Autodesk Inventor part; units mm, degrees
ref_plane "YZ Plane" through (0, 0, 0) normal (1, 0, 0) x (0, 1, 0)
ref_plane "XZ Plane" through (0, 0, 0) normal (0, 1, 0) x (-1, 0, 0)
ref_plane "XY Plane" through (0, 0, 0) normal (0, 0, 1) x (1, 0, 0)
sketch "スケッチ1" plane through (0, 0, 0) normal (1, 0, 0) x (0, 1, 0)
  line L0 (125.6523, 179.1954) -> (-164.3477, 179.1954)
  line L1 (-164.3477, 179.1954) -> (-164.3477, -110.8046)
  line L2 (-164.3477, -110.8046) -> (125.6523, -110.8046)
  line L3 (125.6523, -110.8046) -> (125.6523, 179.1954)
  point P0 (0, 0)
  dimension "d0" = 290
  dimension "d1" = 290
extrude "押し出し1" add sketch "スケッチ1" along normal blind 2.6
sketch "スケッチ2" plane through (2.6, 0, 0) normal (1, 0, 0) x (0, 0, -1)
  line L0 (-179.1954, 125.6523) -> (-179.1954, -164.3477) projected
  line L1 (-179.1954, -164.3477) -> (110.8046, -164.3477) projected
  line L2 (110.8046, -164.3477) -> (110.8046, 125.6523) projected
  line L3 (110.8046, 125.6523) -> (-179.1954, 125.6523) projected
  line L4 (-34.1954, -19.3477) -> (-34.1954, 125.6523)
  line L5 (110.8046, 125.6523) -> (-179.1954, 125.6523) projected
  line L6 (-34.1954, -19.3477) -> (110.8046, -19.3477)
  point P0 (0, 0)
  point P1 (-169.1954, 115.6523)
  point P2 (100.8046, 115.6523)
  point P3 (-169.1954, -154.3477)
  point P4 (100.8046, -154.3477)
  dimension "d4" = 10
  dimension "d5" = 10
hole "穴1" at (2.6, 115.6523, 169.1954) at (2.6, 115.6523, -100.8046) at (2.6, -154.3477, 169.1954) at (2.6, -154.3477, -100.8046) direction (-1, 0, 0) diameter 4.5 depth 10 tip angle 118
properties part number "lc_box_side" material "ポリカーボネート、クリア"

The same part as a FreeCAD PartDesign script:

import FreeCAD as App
import Part
import Sketcher

V = App.Vector
Q = App.Units.Quantity

doc = App.newDocument("Part")
body = doc.addObject("PartDesign::Body", "Body")

# Sketch on YZ plane
sketch1 = body.newObject("Sketcher::SketchObject", "Sketch")
sketch1.AttachmentSupport = (doc.getObject("YZ_Plane"), [""])
sketch1.MapMode = "FlatFace"
sketch1.addGeometry([
    Part.LineSegment(V(125.6523, -110.8046, 0), V(125.6523, 179.1954, 0)),
    Part.LineSegment(V(125.6523, 179.1954, 0), V(-164.3477, 179.1954, 0)),
    Part.LineSegment(V(-164.3477, 179.1954, 0), V(-164.3477, -110.8046, 0)),
    Part.LineSegment(V(-164.3477, -110.8046, 0), V(125.6523, -110.8046, 0)),
], False)
sketch1.addConstraint([
    Sketcher.Constraint("Coincident", 0, 2, 1, 1),
    Sketcher.Constraint("Coincident", 1, 2, 2, 1),
    Sketcher.Constraint("Coincident", 2, 2, 3, 1),
    Sketcher.Constraint("Coincident", 3, 2, 0, 1),
    Sketcher.Constraint("Vertical", 0),
    Sketcher.Constraint("Horizontal", 1),
    Sketcher.Constraint("Vertical", 2),
    Sketcher.Constraint("Horizontal", 3),
    Sketcher.Constraint("Equal", 3, 0),
    Sketcher.Constraint("DistanceX", 1, 2, 1, 1, Q("290 mm")),
    Sketcher.Constraint("DistanceX", -1, 1, 0, 2, Q("125.6523 mm")),
    Sketcher.Constraint("DistanceY", -1, 1, 0, 2, Q("179.1954 mm")),
])
pad1 = body.newObject("PartDesign::Pad", "Pad")
pad1.Profile = sketch1
pad1.Length = 2.6

# Sketch on YZ plane
sketch2 = body.newObject("Sketcher::SketchObject", "Sketch001")
sketch2.AttachmentSupport = (doc.getObject("YZ_Plane"), [""])
sketch2.MapMode = "FlatFace"
sketch2.AttachmentOffset = App.Placement(V(0, 0, 2.6), App.Rotation())
sketch2.addGeometry([
    Part.Circle(V(115.6523, 169.1954, 0), V(0, 0, 1), 2.25),
    Part.Circle(V(115.6523, -100.8046, 0), V(0, 0, 1), 2.25),
    Part.Circle(V(-154.3477, 169.1954, 0), V(0, 0, 1), 2.25),
    Part.Circle(V(-154.3477, -100.8046, 0), V(0, 0, 1), 2.25),
], False)
sketch2.addConstraint([
    Sketcher.Constraint("Equal", 0, 1),
    Sketcher.Constraint("Equal", 1, 2),
    Sketcher.Constraint("Equal", 2, 3),
    Sketcher.Constraint("Horizontal", 0, 3, 2, 3),
    Sketcher.Constraint("Horizontal", 1, 3, 3, 3),
    Sketcher.Constraint("Vertical", 0, 3, 1, 3),
    Sketcher.Constraint("Vertical", 2, 3, 3, 3),
    Sketcher.Constraint("Diameter", 0, Q("4.5 mm")),
    Sketcher.Constraint("DistanceY", 1, 3, 0, 3, Q("270 mm")),
    Sketcher.Constraint("DistanceX", 2, 3, 0, 3, Q("270 mm")),
    Sketcher.Constraint("DistanceX", -1, 1, 0, 3, Q("115.6523 mm")),
    Sketcher.Constraint("DistanceY", -1, 1, 0, 3, Q("169.1954 mm")),
])
doc.recompute()
hole = body.newObject("PartDesign::Hole", "Hole")
hole.Profile = sketch2
hole.ThreadType = "None"
hole.Diameter = 4.5
hole.DepthType = "Dimension"
hole.Depth = 10
hole.DrillPoint = "Angled"
hole.DrillPointAngle = 118

doc.recompute()
